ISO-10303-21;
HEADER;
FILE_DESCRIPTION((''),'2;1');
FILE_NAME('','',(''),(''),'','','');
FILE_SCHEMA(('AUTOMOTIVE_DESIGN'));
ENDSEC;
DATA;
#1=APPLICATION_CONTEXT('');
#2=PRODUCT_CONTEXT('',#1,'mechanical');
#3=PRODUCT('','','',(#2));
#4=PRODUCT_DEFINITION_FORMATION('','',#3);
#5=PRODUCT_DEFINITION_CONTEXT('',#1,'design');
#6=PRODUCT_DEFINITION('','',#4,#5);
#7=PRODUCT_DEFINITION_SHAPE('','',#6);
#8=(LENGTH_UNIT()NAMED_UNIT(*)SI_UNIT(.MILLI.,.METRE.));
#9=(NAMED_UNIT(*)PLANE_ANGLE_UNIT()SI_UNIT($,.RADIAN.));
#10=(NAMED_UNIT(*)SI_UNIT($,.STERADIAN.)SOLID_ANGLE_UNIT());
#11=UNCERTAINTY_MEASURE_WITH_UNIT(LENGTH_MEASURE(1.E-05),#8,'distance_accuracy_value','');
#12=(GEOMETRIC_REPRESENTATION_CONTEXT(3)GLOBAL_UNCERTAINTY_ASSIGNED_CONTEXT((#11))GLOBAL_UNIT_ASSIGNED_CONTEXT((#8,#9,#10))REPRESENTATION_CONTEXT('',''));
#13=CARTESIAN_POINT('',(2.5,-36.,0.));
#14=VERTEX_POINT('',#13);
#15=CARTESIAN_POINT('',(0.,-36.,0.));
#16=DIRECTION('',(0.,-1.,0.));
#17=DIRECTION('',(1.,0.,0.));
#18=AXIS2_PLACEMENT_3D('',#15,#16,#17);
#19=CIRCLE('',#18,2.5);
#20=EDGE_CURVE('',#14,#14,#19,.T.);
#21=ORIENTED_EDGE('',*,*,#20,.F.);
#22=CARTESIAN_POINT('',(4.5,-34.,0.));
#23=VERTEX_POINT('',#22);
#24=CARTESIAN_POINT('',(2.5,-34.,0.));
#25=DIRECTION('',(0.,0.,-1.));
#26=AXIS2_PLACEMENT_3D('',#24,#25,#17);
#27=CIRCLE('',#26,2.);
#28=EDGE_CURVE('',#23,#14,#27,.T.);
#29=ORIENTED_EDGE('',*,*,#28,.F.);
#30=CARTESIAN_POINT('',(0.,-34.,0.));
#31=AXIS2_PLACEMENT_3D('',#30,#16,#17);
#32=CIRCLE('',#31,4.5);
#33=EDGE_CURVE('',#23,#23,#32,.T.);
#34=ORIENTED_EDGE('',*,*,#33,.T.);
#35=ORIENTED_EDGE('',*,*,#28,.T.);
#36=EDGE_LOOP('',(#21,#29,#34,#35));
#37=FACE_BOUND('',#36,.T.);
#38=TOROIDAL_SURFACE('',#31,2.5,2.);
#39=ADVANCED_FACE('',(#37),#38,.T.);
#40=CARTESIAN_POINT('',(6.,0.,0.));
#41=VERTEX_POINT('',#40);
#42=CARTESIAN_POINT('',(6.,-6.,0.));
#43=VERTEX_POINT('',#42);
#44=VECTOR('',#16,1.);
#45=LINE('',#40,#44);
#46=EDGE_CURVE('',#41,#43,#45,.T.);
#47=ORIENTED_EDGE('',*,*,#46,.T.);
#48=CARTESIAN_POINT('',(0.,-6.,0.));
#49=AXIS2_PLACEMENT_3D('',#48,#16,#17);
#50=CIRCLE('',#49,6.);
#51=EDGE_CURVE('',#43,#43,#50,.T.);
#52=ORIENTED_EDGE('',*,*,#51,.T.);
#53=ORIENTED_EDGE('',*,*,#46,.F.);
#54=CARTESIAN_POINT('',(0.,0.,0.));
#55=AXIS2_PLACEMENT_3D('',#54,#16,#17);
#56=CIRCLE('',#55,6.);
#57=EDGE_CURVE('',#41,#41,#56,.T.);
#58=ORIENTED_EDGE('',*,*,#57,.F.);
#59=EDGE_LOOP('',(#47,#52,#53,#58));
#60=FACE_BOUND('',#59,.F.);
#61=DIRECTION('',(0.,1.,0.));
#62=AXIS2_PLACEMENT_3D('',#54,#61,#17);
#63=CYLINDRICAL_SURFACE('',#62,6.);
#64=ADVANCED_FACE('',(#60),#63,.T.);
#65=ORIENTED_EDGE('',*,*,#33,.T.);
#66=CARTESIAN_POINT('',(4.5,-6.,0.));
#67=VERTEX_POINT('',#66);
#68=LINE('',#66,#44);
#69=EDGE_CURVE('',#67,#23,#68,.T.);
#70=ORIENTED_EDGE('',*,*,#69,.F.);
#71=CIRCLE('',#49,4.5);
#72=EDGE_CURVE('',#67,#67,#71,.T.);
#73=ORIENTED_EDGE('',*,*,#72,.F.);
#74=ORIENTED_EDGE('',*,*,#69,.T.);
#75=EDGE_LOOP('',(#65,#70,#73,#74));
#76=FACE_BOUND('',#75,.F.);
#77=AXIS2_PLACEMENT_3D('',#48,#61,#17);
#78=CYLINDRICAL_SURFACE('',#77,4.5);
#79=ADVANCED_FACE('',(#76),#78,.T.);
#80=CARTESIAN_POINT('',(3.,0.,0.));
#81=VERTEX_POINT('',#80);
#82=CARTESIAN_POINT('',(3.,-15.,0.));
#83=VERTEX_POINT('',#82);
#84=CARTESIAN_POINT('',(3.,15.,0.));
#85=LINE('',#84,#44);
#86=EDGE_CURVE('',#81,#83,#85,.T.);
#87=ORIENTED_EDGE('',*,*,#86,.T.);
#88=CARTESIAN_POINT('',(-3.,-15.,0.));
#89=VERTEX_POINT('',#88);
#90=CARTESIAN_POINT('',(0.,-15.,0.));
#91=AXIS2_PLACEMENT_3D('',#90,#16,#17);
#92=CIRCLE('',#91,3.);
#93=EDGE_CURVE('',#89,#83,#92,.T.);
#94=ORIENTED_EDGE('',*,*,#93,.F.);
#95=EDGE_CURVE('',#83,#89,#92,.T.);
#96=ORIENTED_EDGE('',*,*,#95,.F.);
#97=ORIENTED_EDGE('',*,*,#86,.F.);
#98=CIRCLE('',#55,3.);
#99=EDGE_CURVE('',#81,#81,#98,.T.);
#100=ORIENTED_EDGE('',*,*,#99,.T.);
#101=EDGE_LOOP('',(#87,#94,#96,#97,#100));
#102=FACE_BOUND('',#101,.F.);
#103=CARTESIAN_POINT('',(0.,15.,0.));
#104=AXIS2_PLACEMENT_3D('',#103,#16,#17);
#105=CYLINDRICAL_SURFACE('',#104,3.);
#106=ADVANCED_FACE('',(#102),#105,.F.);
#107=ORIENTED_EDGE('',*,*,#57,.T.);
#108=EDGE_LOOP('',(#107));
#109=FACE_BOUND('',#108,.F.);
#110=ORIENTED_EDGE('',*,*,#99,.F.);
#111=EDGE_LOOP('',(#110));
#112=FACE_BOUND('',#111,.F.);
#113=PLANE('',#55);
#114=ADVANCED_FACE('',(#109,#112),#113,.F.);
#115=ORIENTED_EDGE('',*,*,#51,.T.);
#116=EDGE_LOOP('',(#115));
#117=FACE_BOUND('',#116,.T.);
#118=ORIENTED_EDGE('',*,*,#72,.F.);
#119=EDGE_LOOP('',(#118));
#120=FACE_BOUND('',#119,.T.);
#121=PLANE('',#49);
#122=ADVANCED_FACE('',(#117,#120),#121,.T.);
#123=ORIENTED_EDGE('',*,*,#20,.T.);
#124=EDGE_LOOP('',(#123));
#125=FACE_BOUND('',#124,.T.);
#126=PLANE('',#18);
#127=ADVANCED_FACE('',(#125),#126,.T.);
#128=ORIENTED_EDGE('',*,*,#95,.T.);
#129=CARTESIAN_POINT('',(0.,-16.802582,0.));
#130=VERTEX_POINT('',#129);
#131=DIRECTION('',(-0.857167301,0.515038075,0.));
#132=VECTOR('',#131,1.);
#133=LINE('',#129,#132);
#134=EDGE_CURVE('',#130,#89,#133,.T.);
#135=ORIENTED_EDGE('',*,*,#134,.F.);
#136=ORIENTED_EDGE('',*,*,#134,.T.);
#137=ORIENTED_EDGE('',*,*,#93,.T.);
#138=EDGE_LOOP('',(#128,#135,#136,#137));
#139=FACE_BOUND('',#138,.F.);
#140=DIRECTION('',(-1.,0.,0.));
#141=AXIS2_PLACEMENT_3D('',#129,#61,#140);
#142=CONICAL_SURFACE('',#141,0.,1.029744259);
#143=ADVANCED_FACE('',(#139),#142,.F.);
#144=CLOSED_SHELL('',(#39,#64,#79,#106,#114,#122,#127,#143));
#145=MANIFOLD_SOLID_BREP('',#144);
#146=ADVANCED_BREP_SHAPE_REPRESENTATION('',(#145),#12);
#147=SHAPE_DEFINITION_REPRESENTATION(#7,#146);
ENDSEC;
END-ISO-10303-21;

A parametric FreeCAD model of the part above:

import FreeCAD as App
import Part
import Sketcher

V = App.Vector
Q = App.Units.Quantity


def edges_at(feature, points):
    """Names of the edges that pass closest to the given points."""
    edges = feature.Shape.Edges
    near = lambda p: min(range(len(edges)), key=lambda i: edges[i].distToShape(Part.Vertex(*p))[0])
    return sorted({f"Edge{near(p) + 1}" for p in points})

doc = App.newDocument("Part")
params = doc.addObject("Spreadsheet::Sheet", "Params")
for row, (alias, value) in enumerate([
    ("sketch1_diameter", "12 mm"),
    ("pad1_length", "6 mm"),
    ("sketch2_diameter", "9 mm"),
    ("pad2_length", "30 mm"),
    ("fillet_radius", "2 mm"),
    ("sketch3_diameter", "6 mm"),
    ("hole_diameter", "6 mm"),
    ("hole_depth", "15 mm"),
], start=1):
    params.set(f"A{row}", alias)
    params.set(f"B{row}", "=" + value)
    params.setAlias(f"B{row}", alias)

body = doc.addObject("PartDesign::Body", "Body")

sketch1 = body.newObject("Sketcher::SketchObject", "Sketch")
sketch1.AttachmentSupport = (doc.getObject("XZ_Plane"), [""])
sketch1.MapMode = "FlatFace"
sketch1.addGeometry(Part.Circle(V(0, 0, 0), V(0, 0, 1), 6), False)
sketch1.addConstraint([
    Sketcher.Constraint("Coincident", 0, 3, -1, 1),
    Sketcher.Constraint("Diameter", 0, Q("12 mm")),
])
sketch1.setExpression("Constraints[1]", "Params.sketch1_diameter")
pad1 = body.newObject("PartDesign::Pad", "Pad")
pad1.Profile = sketch1
pad1.setExpression("Length", "Params.pad1_length")

sketch2 = body.newObject("Sketcher::SketchObject", "Sketch001")
sketch2.AttachmentSupport = (doc.getObject("XZ_Plane"), [""])
sketch2.MapMode = "FlatFace"
sketch2.AttachmentOffset = App.Placement(V(0, 0, 6), App.Rotation())
sketch2.addGeometry(Part.Circle(V(0, 0, 0), V(0, 0, 1), 4.5), False)
sketch2.addConstraint([
    Sketcher.Constraint("Coincident", 0, 3, -1, 1),
    Sketcher.Constraint("Diameter", 0, Q("9 mm")),
])
sketch2.setExpression("Constraints[1]", "Params.sketch2_diameter")
pad2 = body.newObject("PartDesign::Pad", "Pad001")
pad2.Profile = sketch2
pad2.setExpression("Length", "Params.pad2_length")
doc.recompute()

fillet = body.newObject("PartDesign::Fillet", "Fillet")
fillet.Base = (pad2, edges_at(pad2, [(-4.5, -36, 0)]))
fillet.setExpression("Radius", "Params.fillet_radius")

sketch3 = body.newObject("Sketcher::SketchObject", "Sketch002")
sketch3.AttachmentSupport = (doc.getObject("XZ_Plane"), [""])
sketch3.MapMode = "FlatFace"
sketch3.addGeometry(Part.Circle(V(0, 0, 0), V(0, 0, 1), 3), False)
sketch3.addConstraint([
    Sketcher.Constraint("Coincident", 0, 3, -1, 1),
    Sketcher.Constraint("Diameter", 0, Q("6 mm")),
])
sketch3.setExpression("Constraints[1]", "Params.sketch3_diameter")
doc.recompute()
hole = body.newObject("PartDesign::Hole", "Hole")
hole.Profile = sketch3
hole.ThreadType = "None"
hole.setExpression("Diameter", "Params.hole_diameter")
hole.DepthType = "Dimension"
hole.setExpression("Depth", "Params.hole_depth")
hole.DrillPoint = "Angled"
hole.DrillPointAngle = 118
hole.Reversed = True

doc.recompute()
